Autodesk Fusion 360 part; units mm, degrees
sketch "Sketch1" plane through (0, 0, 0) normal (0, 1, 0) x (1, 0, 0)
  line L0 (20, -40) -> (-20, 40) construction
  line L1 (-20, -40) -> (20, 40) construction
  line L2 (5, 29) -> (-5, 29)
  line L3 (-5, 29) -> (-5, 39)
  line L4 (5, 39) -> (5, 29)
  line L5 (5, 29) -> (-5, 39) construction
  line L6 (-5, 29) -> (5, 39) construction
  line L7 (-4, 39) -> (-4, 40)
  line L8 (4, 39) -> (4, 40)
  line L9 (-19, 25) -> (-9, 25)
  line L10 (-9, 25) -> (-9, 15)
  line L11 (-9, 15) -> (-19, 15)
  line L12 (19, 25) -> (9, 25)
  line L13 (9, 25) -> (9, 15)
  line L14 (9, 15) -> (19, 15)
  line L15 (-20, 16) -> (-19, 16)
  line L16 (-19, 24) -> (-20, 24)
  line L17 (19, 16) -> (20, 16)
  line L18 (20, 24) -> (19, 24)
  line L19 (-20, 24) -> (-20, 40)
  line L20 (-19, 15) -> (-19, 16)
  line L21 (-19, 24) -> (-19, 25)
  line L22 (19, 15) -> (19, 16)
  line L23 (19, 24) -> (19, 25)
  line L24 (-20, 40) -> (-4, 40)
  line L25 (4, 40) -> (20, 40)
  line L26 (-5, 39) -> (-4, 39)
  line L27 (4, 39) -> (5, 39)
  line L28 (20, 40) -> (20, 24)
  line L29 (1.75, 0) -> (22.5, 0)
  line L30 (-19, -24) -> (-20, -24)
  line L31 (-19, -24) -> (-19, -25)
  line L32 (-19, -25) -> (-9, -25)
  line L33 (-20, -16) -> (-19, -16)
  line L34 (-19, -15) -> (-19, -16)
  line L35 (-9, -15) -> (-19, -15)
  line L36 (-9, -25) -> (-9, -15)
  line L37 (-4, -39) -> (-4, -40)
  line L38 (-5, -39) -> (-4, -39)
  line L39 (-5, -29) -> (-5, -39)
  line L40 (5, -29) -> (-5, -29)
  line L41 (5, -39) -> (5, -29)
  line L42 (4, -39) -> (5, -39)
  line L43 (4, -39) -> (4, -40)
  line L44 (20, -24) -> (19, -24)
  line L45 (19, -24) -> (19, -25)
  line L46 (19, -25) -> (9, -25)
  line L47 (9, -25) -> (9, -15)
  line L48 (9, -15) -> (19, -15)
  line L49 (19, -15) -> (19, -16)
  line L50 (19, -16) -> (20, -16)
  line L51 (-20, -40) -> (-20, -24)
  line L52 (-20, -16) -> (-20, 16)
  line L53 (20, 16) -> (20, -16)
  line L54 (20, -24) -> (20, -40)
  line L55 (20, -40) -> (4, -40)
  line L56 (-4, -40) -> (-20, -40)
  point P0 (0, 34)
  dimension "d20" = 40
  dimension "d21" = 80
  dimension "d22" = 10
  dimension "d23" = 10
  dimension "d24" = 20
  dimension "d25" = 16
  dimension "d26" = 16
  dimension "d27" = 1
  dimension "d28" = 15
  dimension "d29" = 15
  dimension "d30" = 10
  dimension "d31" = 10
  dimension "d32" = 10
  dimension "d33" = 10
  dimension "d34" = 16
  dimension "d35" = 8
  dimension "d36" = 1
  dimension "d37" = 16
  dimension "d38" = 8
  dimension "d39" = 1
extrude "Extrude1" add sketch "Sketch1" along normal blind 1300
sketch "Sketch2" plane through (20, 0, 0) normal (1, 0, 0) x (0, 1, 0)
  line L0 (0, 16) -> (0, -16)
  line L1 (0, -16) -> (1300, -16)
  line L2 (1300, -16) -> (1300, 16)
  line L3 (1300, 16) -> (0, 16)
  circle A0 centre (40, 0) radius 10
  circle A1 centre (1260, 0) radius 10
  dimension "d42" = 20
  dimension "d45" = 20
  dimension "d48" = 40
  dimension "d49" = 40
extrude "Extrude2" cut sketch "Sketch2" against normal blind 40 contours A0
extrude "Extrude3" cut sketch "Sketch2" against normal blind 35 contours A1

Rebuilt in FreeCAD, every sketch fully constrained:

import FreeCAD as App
import Part
import Sketcher
from FreeCAD import Vector

doc = App.newDocument("Part")
params = doc.addObject("Spreadsheet::Sheet", "Params")
for row, (alias, value) in enumerate([
    ("sketch1_width", "10 mm"),
    ("sketch1_width2", "1 mm"),
    ("sketch1_width3", "16 mm"),
    ("pad1_length", "1300 mm"),
    ("sketch2_diameter", "20 mm"),
    ("pocket1_length", "40 mm"),
    ("sketch3_diameter", "20 mm"),
    ("pocket2_length", "35 mm"),
], start=1):
    params.set(f"A{row}", alias)
    params.set(f"B{row}", "=" + value)
    params.setAlias(f"B{row}", alias)

body = doc.addObject("PartDesign::Body", "Body")

# Sketch on XZ plane
sketch1 = doc.addObject("Sketcher::SketchObject", "Sketch")
body.addObject(sketch1)
sketch1.AttachmentSupport = (doc.XZ_Plane, [""])
sketch1.MapMode = "FlatFace"
sketch1.addGeometry([
    Part.LineSegment(Vector(5, -39, 0), Vector(5, -29, 0)),  # 0
    Part.LineSegment(Vector(5, -29, 0), Vector(-5, -29, 0)),  # 1
    Part.LineSegment(Vector(-5, -29, 0), Vector(-5, -39, 0)),  # 2
    Part.LineSegment(Vector(-5, -39, 0), Vector(-4, -39, 0)),  # 3
    Part.LineSegment(Vector(-4, -39, 0), Vector(-4, -40, 0)),  # 4
    Part.LineSegment(Vector(-4, -40, 0), Vector(-20, -40, 0)),  # 5
    Part.LineSegment(Vector(-20, -40, 0), Vector(-20, -24, 0)),  # 6
    Part.LineSegment(Vector(-20, -24, 0), Vector(-19, -24, 0)),  # 7
    Part.LineSegment(Vector(-19, -24, 0), Vector(-19, -25, 0)),  # 8
    Part.LineSegment(Vector(-19, -25, 0), Vector(-9, -25, 0)),  # 9
    Part.LineSegment(Vector(-9, -25, 0), Vector(-9, -15, 0)),  # 10
    Part.LineSegment(Vector(-9, -15, 0), Vector(-19, -15, 0)),  # 11
    Part.LineSegment(Vector(-19, -15, 0), Vector(-19, -16, 0)),  # 12
    Part.LineSegment(Vector(-19, -16, 0), Vector(-20, -16, 0)),  # 13
    Part.LineSegment(Vector(-20, -16, 0), Vector(-20, 16, 0)),  # 14
    Part.LineSegment(Vector(-20, 16, 0), Vector(-19, 16, 0)),  # 15
    Part.LineSegment(Vector(-19, 16, 0), Vector(-19, 15, 0)),  # 16
    Part.LineSegment(Vector(-19, 15, 0), Vector(-9, 15, 0)),  # 17
    Part.LineSegment(Vector(-9, 15, 0), Vector(-9, 25, 0)),  # 18
    Part.LineSegment(Vector(-9, 25, 0), Vector(-19, 25, 0)),  # 19
    Part.LineSegment(Vector(-19, 25, 0), Vector(-19, 24, 0)),  # 20
    Part.LineSegment(Vector(-19, 24, 0), Vector(-20, 24, 0)),  # 21
    Part.LineSegment(Vector(-20, 24, 0), Vector(-20, 40, 0)),  # 22
    Part.LineSegment(Vector(-20, 40, 0), Vector(-4, 40, 0)),  # 23
    Part.LineSegment(Vector(-4, 40, 0), Vector(-4, 39, 0)),  # 24
    Part.LineSegment(Vector(-4, 39, 0), Vector(-5, 39, 0)),  # 25
    Part.LineSegment(Vector(-5, 39, 0), Vector(-5, 29, 0)),  # 26
    Part.LineSegment(Vector(-5, 29, 0), Vector(5, 29, 0)),  # 27
    Part.LineSegment(Vector(5, 29, 0), Vector(5, 39, 0)),  # 28
    Part.LineSegment(Vector(5, 39, 0), Vector(4, 39, 0)),  # 29
    Part.LineSegment(Vector(4, 39, 0), Vector(4, 40, 0)),  # 30
    Part.LineSegment(Vector(4, 40, 0), Vector(20, 40, 0)),  # 31
    Part.LineSegment(Vector(20, 40, 0), Vector(20, 24, 0)),  # 32
    Part.LineSegment(Vector(20, 24, 0), Vector(19, 24, 0)),  # 33
    Part.LineSegment(Vector(19, 24, 0), Vector(19, 25, 0)),  # 34
    Part.LineSegment(Vector(19, 25, 0), Vector(9, 25, 0)),  # 35
    Part.LineSegment(Vector(9, 25, 0), Vector(9, 15, 0)),  # 36
    Part.LineSegment(Vector(9, 15, 0), Vector(19, 15, 0)),  # 37
    Part.LineSegment(Vector(19, 15, 0), Vector(19, 16, 0)),  # 38
    Part.LineSegment(Vector(19, 16, 0), Vector(20, 16, 0)),  # 39
    Part.LineSegment(Vector(20, 16, 0), Vector(20, -16, 0)),  # 40
    Part.LineSegment(Vector(20, -16, 0), Vector(19, -16, 0)),  # 41
    Part.LineSegment(Vector(19, -16, 0), Vector(19, -15, 0)),  # 42
    Part.LineSegment(Vector(19, -15, 0), Vector(9, -15, 0)),  # 43
    Part.LineSegment(Vector(9, -15, 0), Vector(9, -25, 0)),  # 44
    Part.LineSegment(Vector(9, -25, 0), Vector(19, -25, 0)),  # 45
    Part.LineSegment(Vector(19, -25, 0), Vector(19, -24, 0)),  # 46
    Part.LineSegment(Vector(19, -24, 0), Vector(20, -24, 0)),  # 47
    Part.LineSegment(Vector(20, -24, 0), Vector(20, -40, 0)),  # 48
    Part.LineSegment(Vector(20, -40, 0), Vector(4, -40, 0)),  # 49
    Part.LineSegment(Vector(4, -40, 0), Vector(4, -39, 0)),  # 50
    Part.LineSegment(Vector(4, -39, 0), Vector(5, -39, 0)),  # 51
], False)
sketch1.addConstraint([
    Sketcher.Constraint("Coincident", 0, 2, 1, 1),
    Sketcher.Constraint("Coincident", 1, 2, 2, 1),
    Sketcher.Constraint("Coincident", 2, 2, 3, 1),
    Sketcher.Constraint("Coincident", 3, 2, 4, 1),
    Sketcher.Constraint("Coincident", 4, 2, 5, 1),
    Sketcher.Constraint("Coincident", 5, 2, 6, 1),
    Sketcher.Constraint("Coincident", 6, 2, 7, 1),
    Sketcher.Constraint("Coincident", 7, 2, 8, 1),
    Sketcher.Constraint("Coincident", 8, 2, 9, 1),
    Sketcher.Constraint("Coincident", 9, 2, 10, 1),
    Sketcher.Constraint("Coincident", 10, 2, 11, 1),
    Sketcher.Constraint("Coincident", 11, 2, 12, 1),
    Sketcher.Constraint("Coincident", 12, 2, 13, 1),
    Sketcher.Constraint("Coincident", 13, 2, 14, 1),
    Sketcher.Constraint("Coincident", 14, 2, 15, 1),
    Sketcher.Constraint("Coincident", 15, 2, 16, 1),
    Sketcher.Constraint("Coincident", 16, 2, 17, 1),
    Sketcher.Constraint("Coincident", 17, 2, 18, 1),
    Sketcher.Constraint("Coincident", 18, 2, 19, 1),
    Sketcher.Constraint("Coincident", 19, 2, 20, 1),
    Sketcher.Constraint("Coincident", 20, 2, 21, 1),
    Sketcher.Constraint("Coincident", 21, 2, 22, 1),
    Sketcher.Constraint("Coincident", 22, 2, 23, 1),
    Sketcher.Constraint("Coincident", 23, 2, 24, 1),
    Sketcher.Constraint("Coincident", 24, 2, 25, 1),
    Sketcher.Constraint("Coincident", 25, 2, 26, 1),
    Sketcher.Constraint("Coincident", 26, 2, 27, 1),
    Sketcher.Constraint("Coincident", 27, 2, 28, 1),
    Sketcher.Constraint("Coincident", 28, 2, 29, 1),
    Sketcher.Constraint("Coincident", 29, 2, 30, 1),
    Sketcher.Constraint("Coincident", 30, 2, 31, 1),
    Sketcher.Constraint("Coincident", 31, 2, 32, 1),
    Sketcher.Constraint("Coincident", 32, 2, 33, 1),
    Sketcher.Constraint("Coincident", 33, 2, 34, 1),
    Sketcher.Constraint("Coincident", 34, 2, 35, 1),
    Sketcher.Constraint("Coincident", 35, 2, 36, 1),
    Sketcher.Constraint("Coincident", 36, 2, 37, 1),
    Sketcher.Constraint("Coincident", 37, 2, 38, 1),
    Sketcher.Constraint("Coincident", 38, 2, 39, 1),
    Sketcher.Constraint("Coincident", 39, 2, 40, 1),
    Sketcher.Constraint("Coincident", 40, 2, 41, 1),
    Sketcher.Constraint("Coincident", 41, 2, 42, 1),
    Sketcher.Constraint("Coincident", 42, 2, 43, 1),
    Sketcher.Constraint("Coincident", 43, 2, 44, 1),
    Sketcher.Constraint("Coincident", 44, 2, 45, 1),
    Sketcher.Constraint("Coincident", 45, 2, 46, 1),
    Sketcher.Constraint("Coincident", 46, 2, 47, 1),
    Sketcher.Constraint("Coincident", 47, 2, 48, 1),
    Sketcher.Constraint("Coincident", 48, 2, 49, 1),
    Sketcher.Constraint("Coincident", 49, 2, 50, 1),
    Sketcher.Constraint("Coincident", 50, 2, 51, 1),
    Sketcher.Constraint("Coincident", 51, 2, 0, 1),
    Sketcher.Constraint("Vertical", 0),
    Sketcher.Constraint("Horizontal", 1),
    Sketcher.Constraint("Vertical", 2),
    Sketcher.Constraint("Horizontal", 3),
    Sketcher.Constraint("Vertical", 4),
    Sketcher.Constraint("Horizontal", 5),
    Sketcher.Constraint("Vertical", 6),
    Sketcher.Constraint("Horizontal", 7),
    Sketcher.Constraint("Vertical", 8),
    Sketcher.Constraint("Horizontal", 9),
    Sketcher.Constraint("Vertical", 10),
    Sketcher.Constraint("Horizontal", 11),
    Sketcher.Constraint("Vertical", 12),
    Sketcher.Constraint("Horizontal", 13),
    Sketcher.Constraint("Vertical", 14),
    Sketcher.Constraint("Horizontal", 15),
    Sketcher.Constraint("Vertical", 16),
    Sketcher.Constraint("Horizontal", 17),
    Sketcher.Constraint("Vertical", 18),
    Sketcher.Constraint("Horizontal", 19),
    Sketcher.Constraint("Vertical", 20),
    Sketcher.Constraint("Horizontal", 21),
    Sketcher.Constraint("Vertical", 22),
    Sketcher.Constraint("Horizontal", 23),
    Sketcher.Constraint("Vertical", 24),
    Sketcher.Constraint("Horizontal", 25),
    Sketcher.Constraint("Vertical", 26),
    Sketcher.Constraint("Horizontal", 27),
    Sketcher.Constraint("Vertical", 28),
    Sketcher.Constraint("Horizontal", 29),
    Sketcher.Constraint("Vertical", 30),
    Sketcher.Constraint("Horizontal", 31),
    Sketcher.Constraint("Vertical", 32),
    Sketcher.Constraint("Horizontal", 33),
    Sketcher.Constraint("Vertical", 34),
    Sketcher.Constraint("Horizontal", 35),
    Sketcher.Constraint("Vertical", 36),
    Sketcher.Constraint("Horizontal", 37),
    Sketcher.Constraint("Vertical", 38),
    Sketcher.Constraint("Horizontal", 39),
    Sketcher.Constraint("Vertical", 40),
    Sketcher.Constraint("Horizontal", 41),
    Sketcher.Constraint("Vertical", 42),
    Sketcher.Constraint("Horizontal", 43),
    Sketcher.Constraint("Vertical", 44),
    Sketcher.Constraint("Horizontal", 45),
    Sketcher.Constraint("Vertical", 46),
    Sketcher.Constraint("Horizontal", 47),
    Sketcher.Constraint("Vertical", 48),
    Sketcher.Constraint("Horizontal", 49),
    Sketcher.Constraint("Vertical", 50),
    Sketcher.Constraint("Horizontal", 51),
    Sketcher.Constraint("Symmetric", 0, 2, 26, 2, -1, 1),
    Sketcher.Constraint("Symmetric", 2, 2, 28, 2, -1, 1),
    Sketcher.Constraint("Symmetric", 4, 2, 30, 2, -1, 1),
    Sketcher.Constraint("Symmetric", 6, 2, 32, 2, -1, 1),
    Sketcher.Constraint("Symmetric", 8, 2, 34, 2, -1, 1),
    Sketcher.Constraint("Symmetric", 10, 2, 36, 2, -1, 1),
    Sketcher.Constraint("Symmetric", 12, 2, 38, 2, -1, 1),
    Sketcher.Constraint("Symmetric", 14, 2, 40, 2, -1, 1),
    Sketcher.Constraint("Symmetric", 16, 2, 42, 2, -1, 1),
    Sketcher.Constraint("Symmetric", 18, 2, 44, 2, -1, 1),
    Sketcher.Constraint("Symmetric", 20, 2, 46, 2, -1, 1),
    Sketcher.Constraint("Symmetric", 22, 2, 48, 2, -1, 1),
    Sketcher.Constraint("Symmetric", 24, 2, 50, 2, -1, 1),
    Sketcher.Constraint("Symmetric", 25, 2, 28, 2, -2),
    Sketcher.Constraint("Symmetric", 23, 2, 30, 2, -2),
    Sketcher.Constraint("Symmetric", 21, 2, 32, 2, -2),
    Sketcher.Constraint("Symmetric", 19, 2, 34, 2, -2),
    Sketcher.Constraint("Symmetric", 17, 2, 36, 2, -2),
    Sketcher.Constraint("Symmetric", 15, 2, 38, 2, -2),
    Sketcher.Constraint("Vertical", 8, 2, 11, 2),
    Sketcher.Constraint("Vertical", 6, 2, 13, 2),
    Sketcher.Constraint("Equal", 3, 7),
    Sketcher.Constraint("Equal", 1, 9),
    Sketcher.Constraint("Equal", 45, 0),
    Sketcher.Constraint("Equal", 51, 4),
    Sketcher.Constraint("Equal", 49, 6),
    Sketcher.Constraint("Equal", 4, 8),
    Sketcher.Constraint("Equal", 2, 10),
    Sketcher.Constraint("Equal", 8, 12),
    Sketcher.Constraint("DistanceX", 1, 2, 1, 1, 10.0),
    Sketcher.Constraint("DistanceX", 3, 1, 3, 2, 1.0),
    Sketcher.Constraint("DistanceX", 5, 2, 5, 1, 16.0),
    Sketcher.Constraint("DistanceY", 4, 2, -1, 1, 40.0),
])
sketch1.setExpression("Constraints[133]", "Params.sketch1_width")
sketch1.setExpression("Constraints[134]", "Params.sketch1_width2")
sketch1.setExpression("Constraints[135]", "Params.sketch1_width3")
pad1 = doc.addObject("PartDesign::Pad", "Pad")
body.addObject(pad1)
pad1.Profile = sketch1
pad1.setExpression("Length", "Params.pad1_length")
pad1.Reversed = True

# Sketch on YZ plane
sketch2 = doc.addObject("Sketcher::SketchObject", "Sketch001")
body.addObject(sketch2)
sketch2.AttachmentSupport = (doc.YZ_Plane, [""])
sketch2.MapMode = "FlatFace"
sketch2.AttachmentOffset = App.Placement(Vector(0, 0, 20), App.Rotation())
sketch2.addGeometry(Part.Circle(Vector(40, 0, 0), Vector(0, 0, 1), 10), False)
sketch2.addConstraint([
    Sketcher.Constraint("PointOnObject", 0, 3, -1),
    Sketcher.Constraint("Diameter", 0, 20.0),
    Sketcher.Constraint("DistanceX", -1, 1, 0, 3, 40.0),
])
sketch2.setExpression("Constraints[1]", "Params.sketch2_diameter")
pocket1 = doc.addObject("PartDesign::Pocket", "Pocket")
body.addObject(pocket1)
pocket1.Profile = sketch2
pocket1.setExpression("Length", "Params.pocket1_length")

# Sketch on YZ plane
sketch3 = doc.addObject("Sketcher::SketchObject", "Sketch002")
body.addObject(sketch3)
sketch3.AttachmentSupport = (doc.YZ_Plane, [""])
sketch3.MapMode = "FlatFace"
sketch3.AttachmentOffset = App.Placement(Vector(0, 0, 20), App.Rotation())
sketch3.addGeometry(Part.Circle(Vector(1260, 0, 0), Vector(0, 0, 1), 10), False)
sketch3.addConstraint([
    Sketcher.Constraint("PointOnObject", 0, 3, -1),
    Sketcher.Constraint("Diameter", 0, 20.0),
    Sketcher.Constraint("DistanceX", -1, 1, 0, 3, 1260.0),
])
sketch3.setExpression("Constraints[1]", "Params.sketch3_diameter")
pocket2 = doc.addObject("PartDesign::Pocket", "Pocket001")
body.addObject(pocket2)
pocket2.Profile = sketch3
pocket2.setExpression("Length", "Params.pocket2_length")

doc.recompute()
